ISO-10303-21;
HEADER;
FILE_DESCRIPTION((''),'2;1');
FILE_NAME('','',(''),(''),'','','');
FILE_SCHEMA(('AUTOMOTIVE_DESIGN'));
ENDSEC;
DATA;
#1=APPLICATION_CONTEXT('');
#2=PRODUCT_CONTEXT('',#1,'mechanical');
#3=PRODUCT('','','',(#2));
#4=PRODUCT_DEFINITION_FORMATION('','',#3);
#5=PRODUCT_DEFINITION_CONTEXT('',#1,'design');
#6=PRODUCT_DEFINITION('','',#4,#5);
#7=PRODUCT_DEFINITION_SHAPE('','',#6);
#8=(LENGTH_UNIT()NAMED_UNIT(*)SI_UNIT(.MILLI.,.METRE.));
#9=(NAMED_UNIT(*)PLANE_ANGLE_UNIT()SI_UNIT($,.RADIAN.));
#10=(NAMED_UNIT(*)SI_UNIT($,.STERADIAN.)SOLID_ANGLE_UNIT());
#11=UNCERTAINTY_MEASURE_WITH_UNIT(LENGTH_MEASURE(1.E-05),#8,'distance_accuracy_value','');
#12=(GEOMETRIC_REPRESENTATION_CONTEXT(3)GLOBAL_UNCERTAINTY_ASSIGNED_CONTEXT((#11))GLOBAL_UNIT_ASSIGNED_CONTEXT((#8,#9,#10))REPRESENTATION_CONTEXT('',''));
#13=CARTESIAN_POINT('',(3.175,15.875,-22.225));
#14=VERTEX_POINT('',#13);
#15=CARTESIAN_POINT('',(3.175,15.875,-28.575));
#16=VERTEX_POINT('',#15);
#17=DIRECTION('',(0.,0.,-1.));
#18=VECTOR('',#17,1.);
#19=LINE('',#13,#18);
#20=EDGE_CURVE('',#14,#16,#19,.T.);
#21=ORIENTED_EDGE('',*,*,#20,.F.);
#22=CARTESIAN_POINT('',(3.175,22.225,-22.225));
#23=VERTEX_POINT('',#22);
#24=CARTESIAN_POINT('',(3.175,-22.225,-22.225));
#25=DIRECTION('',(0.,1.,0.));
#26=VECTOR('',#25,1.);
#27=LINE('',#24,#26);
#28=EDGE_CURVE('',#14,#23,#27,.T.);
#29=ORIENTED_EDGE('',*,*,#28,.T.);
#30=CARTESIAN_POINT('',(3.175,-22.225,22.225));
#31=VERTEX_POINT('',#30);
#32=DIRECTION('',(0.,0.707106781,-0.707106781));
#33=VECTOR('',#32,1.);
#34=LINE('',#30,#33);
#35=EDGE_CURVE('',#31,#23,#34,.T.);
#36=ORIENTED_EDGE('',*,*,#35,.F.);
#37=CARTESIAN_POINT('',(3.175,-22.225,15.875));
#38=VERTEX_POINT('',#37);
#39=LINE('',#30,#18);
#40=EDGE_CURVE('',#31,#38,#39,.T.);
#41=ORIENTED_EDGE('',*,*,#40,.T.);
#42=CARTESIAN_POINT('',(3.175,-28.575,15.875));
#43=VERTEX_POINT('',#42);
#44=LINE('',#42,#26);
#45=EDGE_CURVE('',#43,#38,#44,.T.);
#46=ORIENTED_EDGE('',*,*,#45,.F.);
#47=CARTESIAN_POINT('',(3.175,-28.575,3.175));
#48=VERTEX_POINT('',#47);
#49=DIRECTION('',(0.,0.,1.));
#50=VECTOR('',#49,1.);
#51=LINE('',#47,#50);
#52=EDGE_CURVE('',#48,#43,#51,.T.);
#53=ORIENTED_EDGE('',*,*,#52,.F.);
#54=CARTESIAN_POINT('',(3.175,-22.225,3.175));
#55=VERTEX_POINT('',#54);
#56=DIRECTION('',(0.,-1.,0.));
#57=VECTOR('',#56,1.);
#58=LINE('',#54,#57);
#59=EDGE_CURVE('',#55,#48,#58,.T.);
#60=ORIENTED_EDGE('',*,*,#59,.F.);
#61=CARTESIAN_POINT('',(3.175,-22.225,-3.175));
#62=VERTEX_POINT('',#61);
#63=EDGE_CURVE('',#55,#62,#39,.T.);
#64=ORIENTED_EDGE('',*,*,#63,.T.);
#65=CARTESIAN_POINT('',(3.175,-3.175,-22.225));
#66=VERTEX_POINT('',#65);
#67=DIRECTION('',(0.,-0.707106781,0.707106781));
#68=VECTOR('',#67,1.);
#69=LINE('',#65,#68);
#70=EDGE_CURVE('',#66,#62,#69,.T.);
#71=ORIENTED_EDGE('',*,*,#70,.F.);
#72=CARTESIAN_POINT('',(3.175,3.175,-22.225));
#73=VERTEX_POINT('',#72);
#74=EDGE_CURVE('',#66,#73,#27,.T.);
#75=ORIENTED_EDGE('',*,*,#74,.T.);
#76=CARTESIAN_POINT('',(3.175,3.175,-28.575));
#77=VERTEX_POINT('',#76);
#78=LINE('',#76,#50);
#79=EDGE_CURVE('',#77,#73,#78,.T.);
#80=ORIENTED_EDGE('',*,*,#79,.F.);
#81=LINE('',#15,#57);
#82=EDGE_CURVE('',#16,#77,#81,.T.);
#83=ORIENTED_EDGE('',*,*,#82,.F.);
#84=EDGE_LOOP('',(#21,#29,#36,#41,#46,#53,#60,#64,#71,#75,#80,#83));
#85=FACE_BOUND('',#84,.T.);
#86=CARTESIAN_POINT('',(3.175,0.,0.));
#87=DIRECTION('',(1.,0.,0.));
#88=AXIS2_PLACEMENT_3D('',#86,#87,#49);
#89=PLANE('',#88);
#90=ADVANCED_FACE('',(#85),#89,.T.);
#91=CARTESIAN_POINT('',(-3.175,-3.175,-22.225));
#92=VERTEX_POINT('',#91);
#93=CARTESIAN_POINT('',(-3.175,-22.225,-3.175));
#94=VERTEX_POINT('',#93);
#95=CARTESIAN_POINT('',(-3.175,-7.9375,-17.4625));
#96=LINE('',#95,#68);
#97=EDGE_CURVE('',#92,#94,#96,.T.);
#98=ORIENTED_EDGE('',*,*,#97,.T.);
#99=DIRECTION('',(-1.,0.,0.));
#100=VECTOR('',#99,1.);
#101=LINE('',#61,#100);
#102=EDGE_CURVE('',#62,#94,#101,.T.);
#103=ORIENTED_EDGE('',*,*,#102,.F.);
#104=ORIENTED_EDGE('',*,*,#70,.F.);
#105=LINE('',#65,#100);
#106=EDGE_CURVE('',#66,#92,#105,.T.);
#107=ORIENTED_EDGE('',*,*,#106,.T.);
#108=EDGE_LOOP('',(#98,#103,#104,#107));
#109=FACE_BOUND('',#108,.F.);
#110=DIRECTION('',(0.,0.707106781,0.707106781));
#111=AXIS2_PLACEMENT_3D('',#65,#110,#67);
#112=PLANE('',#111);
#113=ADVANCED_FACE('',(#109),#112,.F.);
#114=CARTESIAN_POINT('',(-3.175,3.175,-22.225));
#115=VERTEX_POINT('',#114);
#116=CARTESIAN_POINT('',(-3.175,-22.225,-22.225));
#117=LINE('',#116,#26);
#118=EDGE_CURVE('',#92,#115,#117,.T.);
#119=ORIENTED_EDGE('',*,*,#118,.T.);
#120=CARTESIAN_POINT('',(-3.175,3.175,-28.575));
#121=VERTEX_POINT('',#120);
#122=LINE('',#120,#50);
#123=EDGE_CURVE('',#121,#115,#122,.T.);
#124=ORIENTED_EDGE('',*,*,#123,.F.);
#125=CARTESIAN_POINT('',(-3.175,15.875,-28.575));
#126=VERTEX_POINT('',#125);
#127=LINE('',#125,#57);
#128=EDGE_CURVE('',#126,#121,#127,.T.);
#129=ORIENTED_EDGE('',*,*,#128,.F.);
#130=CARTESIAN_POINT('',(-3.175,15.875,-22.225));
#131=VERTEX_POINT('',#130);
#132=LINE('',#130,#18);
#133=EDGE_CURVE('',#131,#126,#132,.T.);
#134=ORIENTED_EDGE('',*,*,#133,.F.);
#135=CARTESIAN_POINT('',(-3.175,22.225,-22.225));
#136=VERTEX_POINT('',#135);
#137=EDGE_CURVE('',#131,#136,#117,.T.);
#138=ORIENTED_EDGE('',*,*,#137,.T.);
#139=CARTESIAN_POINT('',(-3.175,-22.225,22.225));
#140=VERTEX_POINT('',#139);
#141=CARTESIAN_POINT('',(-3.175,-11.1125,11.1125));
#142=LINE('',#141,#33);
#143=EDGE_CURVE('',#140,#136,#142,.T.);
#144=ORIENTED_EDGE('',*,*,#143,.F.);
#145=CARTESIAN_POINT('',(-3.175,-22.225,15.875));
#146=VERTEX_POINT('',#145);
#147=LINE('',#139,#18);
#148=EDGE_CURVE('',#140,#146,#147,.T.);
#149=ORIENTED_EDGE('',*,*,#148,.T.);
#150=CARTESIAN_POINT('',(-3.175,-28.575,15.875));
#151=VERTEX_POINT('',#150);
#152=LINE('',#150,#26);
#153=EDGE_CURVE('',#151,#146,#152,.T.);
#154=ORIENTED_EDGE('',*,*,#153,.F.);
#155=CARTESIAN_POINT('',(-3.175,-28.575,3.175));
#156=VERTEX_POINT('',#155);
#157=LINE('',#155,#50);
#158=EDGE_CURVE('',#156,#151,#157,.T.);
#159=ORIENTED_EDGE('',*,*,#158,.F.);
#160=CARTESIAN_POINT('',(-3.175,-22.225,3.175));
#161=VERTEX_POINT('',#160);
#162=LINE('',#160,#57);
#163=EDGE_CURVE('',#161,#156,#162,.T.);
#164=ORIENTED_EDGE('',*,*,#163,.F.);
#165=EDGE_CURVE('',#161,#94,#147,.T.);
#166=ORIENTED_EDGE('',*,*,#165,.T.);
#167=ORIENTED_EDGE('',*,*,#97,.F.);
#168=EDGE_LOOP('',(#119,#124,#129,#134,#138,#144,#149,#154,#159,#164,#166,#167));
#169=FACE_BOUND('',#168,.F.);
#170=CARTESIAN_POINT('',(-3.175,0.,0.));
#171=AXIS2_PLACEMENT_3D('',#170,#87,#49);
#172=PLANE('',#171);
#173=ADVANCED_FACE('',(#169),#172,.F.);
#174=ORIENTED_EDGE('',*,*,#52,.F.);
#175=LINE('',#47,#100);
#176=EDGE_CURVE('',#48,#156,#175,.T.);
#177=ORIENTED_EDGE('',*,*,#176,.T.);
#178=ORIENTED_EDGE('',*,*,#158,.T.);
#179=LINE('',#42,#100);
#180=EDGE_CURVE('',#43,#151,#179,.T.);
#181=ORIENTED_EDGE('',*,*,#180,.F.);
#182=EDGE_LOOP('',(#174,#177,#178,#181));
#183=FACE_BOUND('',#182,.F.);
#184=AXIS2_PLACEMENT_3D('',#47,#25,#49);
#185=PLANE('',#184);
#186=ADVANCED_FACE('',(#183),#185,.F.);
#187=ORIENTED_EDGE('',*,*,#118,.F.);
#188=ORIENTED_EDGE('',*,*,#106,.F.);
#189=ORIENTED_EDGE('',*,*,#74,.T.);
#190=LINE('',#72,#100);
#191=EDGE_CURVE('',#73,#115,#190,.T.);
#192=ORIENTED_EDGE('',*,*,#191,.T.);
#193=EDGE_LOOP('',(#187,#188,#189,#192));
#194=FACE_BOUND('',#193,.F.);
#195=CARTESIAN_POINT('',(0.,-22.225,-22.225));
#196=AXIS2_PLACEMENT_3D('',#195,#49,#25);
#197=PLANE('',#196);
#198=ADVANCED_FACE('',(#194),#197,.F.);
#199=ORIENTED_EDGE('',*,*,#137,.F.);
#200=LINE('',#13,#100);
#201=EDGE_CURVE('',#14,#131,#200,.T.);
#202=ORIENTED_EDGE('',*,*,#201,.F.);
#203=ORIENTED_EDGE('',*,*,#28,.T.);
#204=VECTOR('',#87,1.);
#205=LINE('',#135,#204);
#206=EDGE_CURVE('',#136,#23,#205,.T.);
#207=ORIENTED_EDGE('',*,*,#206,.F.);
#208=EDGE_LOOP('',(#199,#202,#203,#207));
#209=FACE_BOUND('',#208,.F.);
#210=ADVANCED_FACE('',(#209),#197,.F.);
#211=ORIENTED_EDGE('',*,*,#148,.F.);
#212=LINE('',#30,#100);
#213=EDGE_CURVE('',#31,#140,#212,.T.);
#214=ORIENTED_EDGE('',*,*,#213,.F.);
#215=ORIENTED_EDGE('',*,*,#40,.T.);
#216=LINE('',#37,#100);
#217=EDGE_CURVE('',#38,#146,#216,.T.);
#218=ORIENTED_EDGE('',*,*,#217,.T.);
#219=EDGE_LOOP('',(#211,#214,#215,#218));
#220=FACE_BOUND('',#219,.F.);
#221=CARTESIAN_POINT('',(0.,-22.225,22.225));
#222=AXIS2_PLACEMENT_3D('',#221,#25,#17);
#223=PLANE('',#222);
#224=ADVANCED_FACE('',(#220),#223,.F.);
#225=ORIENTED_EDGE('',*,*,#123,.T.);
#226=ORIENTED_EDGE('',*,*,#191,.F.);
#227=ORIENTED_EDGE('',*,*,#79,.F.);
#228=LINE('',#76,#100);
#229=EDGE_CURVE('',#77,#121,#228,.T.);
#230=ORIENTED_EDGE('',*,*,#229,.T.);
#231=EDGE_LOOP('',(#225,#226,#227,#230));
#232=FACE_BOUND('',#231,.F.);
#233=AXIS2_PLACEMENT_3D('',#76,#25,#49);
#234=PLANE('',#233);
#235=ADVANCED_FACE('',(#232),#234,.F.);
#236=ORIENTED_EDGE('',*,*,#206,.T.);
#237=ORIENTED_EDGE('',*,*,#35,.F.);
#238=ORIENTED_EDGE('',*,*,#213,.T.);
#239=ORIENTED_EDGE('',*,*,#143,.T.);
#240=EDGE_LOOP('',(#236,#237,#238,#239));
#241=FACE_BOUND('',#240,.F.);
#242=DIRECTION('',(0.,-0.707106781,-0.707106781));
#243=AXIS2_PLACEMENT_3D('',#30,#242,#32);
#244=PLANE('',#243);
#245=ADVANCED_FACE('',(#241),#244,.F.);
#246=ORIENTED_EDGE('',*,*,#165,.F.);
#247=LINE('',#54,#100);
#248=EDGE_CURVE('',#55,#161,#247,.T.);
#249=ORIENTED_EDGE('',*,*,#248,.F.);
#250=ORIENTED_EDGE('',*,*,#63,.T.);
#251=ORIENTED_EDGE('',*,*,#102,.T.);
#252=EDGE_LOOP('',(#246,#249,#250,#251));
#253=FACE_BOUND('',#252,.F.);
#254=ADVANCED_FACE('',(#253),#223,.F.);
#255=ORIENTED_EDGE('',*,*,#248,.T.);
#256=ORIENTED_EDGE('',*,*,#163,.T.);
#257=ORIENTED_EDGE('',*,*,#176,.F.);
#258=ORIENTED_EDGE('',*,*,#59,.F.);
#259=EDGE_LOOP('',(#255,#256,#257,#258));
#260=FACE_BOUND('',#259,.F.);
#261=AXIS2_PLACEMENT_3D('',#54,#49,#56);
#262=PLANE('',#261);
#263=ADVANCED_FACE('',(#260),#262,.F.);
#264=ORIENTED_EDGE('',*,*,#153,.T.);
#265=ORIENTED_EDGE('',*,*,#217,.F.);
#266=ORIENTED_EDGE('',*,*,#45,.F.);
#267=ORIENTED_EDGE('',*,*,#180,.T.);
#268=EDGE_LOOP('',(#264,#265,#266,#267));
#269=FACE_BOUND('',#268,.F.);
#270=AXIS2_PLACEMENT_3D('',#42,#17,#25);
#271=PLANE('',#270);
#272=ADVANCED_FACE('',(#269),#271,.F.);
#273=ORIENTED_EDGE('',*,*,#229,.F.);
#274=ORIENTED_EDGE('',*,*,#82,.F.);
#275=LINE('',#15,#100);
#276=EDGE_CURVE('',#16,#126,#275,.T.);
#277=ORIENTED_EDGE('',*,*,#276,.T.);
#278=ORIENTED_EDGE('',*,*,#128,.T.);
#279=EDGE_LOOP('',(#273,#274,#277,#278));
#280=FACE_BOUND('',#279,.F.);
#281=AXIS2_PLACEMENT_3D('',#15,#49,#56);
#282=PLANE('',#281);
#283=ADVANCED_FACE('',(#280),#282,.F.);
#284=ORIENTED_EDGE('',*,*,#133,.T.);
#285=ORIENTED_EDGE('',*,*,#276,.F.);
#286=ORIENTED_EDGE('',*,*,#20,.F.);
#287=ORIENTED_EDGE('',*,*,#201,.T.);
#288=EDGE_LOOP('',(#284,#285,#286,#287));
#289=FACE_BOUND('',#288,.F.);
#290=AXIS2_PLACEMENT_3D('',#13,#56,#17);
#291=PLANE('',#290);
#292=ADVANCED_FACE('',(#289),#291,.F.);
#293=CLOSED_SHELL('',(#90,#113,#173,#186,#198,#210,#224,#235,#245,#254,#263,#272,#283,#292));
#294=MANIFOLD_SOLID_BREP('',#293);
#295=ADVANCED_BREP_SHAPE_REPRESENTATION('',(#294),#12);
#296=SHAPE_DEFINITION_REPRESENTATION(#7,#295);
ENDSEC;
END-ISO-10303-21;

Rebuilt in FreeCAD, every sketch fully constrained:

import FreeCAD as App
import Part
import Sketcher

V = App.Vector
Q = App.Units.Quantity


def add_polygon(sketch, points):
    """Adds a closed chain of lines whose ends are joined by coincident constraints."""
    first, n = sketch.GeometryCount, len(points)
    for a, b in zip(points, points[1:] + points[:1]):
        sketch.addGeometry(Part.LineSegment(App.Vector(*a, 0), App.Vector(*b, 0)), False)
    for i in range(n):
        sketch.addConstraint(Sketcher.Constraint("Coincident", first + i, 2, first + (i + 1) % n, 1))

doc = App.newDocument("Part")
params = doc.addObject("Spreadsheet::Sheet", "Params")
for row, (alias, value) in enumerate([
    ("pad1_length", "0.25 in"),
    ("sketch3_width", "0.5 in"),
    ("pad2_length", "0.25 in"),
], start=1):
    params.set(f"A{row}", alias)
    params.set(f"B{row}", "=" + value)
    params.setAlias(f"B{row}", alias)

body = doc.addObject("PartDesign::Body", "Body")

# Sketch on YZ plane
sketch1 = body.newObject("Sketcher::SketchObject", "Sketch")
sketch1.AttachmentSupport = (doc.getObject("YZ_Plane"), [""])
sketch1.MapMode = "FlatFace"
add_polygon(sketch1, [(-22.225, 22.225), (-22.225, -22.225), (22.225, -22.225), (22.225, 22.225)])  # lines 0-3
sketch1.addConstraint(Sketcher.Constraint("Vertical", 0))
sketch1.addConstraint(Sketcher.Constraint("Horizontal", 1))
sketch1.addConstraint(Sketcher.Constraint("Vertical", 2))
sketch1.addConstraint(Sketcher.Constraint("Horizontal", 3))
sketch1.addConstraint(Sketcher.Constraint("Symmetric", 0, 2, 2, 2, -1, 1))
sketch1.addConstraint(Sketcher.Constraint("Equal", 3, 0))
sketch1.addConstraint(Sketcher.Constraint("DistanceX", 0, 2, -1, 1, Q("0.875 in")))
pad1 = body.newObject("PartDesign::Pad", "Pad")
pad1.Profile = sketch1
pad1.setExpression("Length", "Params.pad1_length")
pad1.Midplane = True

# Sketch on YZ plane
sketch2 = body.newObject("Sketcher::SketchObject", "Sketch001")
sketch2.AttachmentSupport = (doc.getObject("YZ_Plane"), [""])
sketch2.MapMode = "FlatFace"
sketch2.AttachmentOffset = App.Placement(V(0, 0, 0.125 * 25.4), App.Rotation())
add_polygon(sketch2, [(22.225, 22.225), (-22.225, 22.225), (22.225, -22.225)])  # lines 0-2
add_polygon(sketch2, [(-3.175, -22.225), (-22.225, -3.175), (-22.225, -22.225)])  # lines 3-5
sketch2.addConstraint(Sketcher.Constraint("Horizontal", 0))
sketch2.addConstraint(Sketcher.Constraint("Vertical", 2))
sketch2.addConstraint(Sketcher.Constraint("Vertical", 4))
sketch2.addConstraint(Sketcher.Constraint("Horizontal", 5))
sketch2.addConstraint(Sketcher.Constraint("Symmetric", 0, 2, 1, 2, -1, 1))
sketch2.addConstraint(Sketcher.Constraint("Symmetric", 2, 2, 4, 2, -1, 1))
sketch2.addConstraint(Sketcher.Constraint("Parallel", 1, 3))
sketch2.addConstraint(Sketcher.Constraint("Equal", 0, 2))
sketch2.addConstraint(Sketcher.Constraint("DistanceX", 0, 2, -1, 1, Q("0.875 in")))
sketch2.addConstraint(Sketcher.Constraint("DistanceY", 3, 2, 0, 2, Q("1 in")))
pocket1 = body.newObject("PartDesign::Pocket", "Pocket")
pocket1.Profile = sketch2
pocket1.Type = "ThroughAll"

# Sketch on YZ plane
sketch3 = body.newObject("Sketcher::SketchObject", "Sketch002")
sketch3.AttachmentSupport = (doc.getObject("YZ_Plane"), [""])
sketch3.MapMode = "FlatFace"
sketch3.AttachmentOffset = App.Placement(V(0, 0, 0.125 * 25.4), App.Rotation())
add_polygon(sketch3, [(-28.575, 3.175), (-22.225, 3.175), (-22.225, 15.875), (-28.575, 15.875)])  # lines 0-3
add_polygon(sketch3, [(15.875, -22.225), (3.175, -22.225), (3.175, -28.575), (15.875, -28.575)])  # lines 4-7
sketch3.addConstraint(Sketcher.Constraint("Horizontal", 0))
sketch3.addConstraint(Sketcher.Constraint("Vertical", 1))
sketch3.addConstraint(Sketcher.Constraint("Horizontal", 2))
sketch3.addConstraint(Sketcher.Constraint("Vertical", 3))
sketch3.addConstraint(Sketcher.Constraint("Horizontal", 4))
sketch3.addConstraint(Sketcher.Constraint("Vertical", 5))
sketch3.addConstraint(Sketcher.Constraint("Horizontal", 6))
sketch3.addConstraint(Sketcher.Constraint("Vertical", 7))
sketch3.addConstraint(Sketcher.Constraint("Equal", 6, 1))
sketch3.addConstraint(Sketcher.Constraint("Equal", 2, 5))
sketch3.addConstraint(Sketcher.Constraint("DistanceX", 4, 2, 4, 1, Q("0.5 in")))
sketch3.addConstraint(Sketcher.Constraint("DistanceY", -1, 1, 1, 2, Q("0.625 in")))
sketch3.addConstraint(Sketcher.Constraint("DistanceX", 2, 2, -1, 1, Q("1.125 in")))
sketch3.addConstraint(Sketcher.Constraint("DistanceY", 5, 2, -1, 1, Q("1.125 in")))
sketch3.addConstraint(Sketcher.Constraint("DistanceX", -1, 1, 6, 2, Q("0.625 in")))
sketch3.addConstraint(Sketcher.Constraint("DistanceX", 0, 2, 4, 2, Q("1 in")))
sketch3.setExpression("Constraints[18]", "Params.sketch3_width")
pad2 = body.newObject("PartDesign::Pad", "Pad001")
pad2.Profile = sketch3
pad2.setExpression("Length", "Params.pad2_length")
pad2.Reversed = True

doc.recompute()
